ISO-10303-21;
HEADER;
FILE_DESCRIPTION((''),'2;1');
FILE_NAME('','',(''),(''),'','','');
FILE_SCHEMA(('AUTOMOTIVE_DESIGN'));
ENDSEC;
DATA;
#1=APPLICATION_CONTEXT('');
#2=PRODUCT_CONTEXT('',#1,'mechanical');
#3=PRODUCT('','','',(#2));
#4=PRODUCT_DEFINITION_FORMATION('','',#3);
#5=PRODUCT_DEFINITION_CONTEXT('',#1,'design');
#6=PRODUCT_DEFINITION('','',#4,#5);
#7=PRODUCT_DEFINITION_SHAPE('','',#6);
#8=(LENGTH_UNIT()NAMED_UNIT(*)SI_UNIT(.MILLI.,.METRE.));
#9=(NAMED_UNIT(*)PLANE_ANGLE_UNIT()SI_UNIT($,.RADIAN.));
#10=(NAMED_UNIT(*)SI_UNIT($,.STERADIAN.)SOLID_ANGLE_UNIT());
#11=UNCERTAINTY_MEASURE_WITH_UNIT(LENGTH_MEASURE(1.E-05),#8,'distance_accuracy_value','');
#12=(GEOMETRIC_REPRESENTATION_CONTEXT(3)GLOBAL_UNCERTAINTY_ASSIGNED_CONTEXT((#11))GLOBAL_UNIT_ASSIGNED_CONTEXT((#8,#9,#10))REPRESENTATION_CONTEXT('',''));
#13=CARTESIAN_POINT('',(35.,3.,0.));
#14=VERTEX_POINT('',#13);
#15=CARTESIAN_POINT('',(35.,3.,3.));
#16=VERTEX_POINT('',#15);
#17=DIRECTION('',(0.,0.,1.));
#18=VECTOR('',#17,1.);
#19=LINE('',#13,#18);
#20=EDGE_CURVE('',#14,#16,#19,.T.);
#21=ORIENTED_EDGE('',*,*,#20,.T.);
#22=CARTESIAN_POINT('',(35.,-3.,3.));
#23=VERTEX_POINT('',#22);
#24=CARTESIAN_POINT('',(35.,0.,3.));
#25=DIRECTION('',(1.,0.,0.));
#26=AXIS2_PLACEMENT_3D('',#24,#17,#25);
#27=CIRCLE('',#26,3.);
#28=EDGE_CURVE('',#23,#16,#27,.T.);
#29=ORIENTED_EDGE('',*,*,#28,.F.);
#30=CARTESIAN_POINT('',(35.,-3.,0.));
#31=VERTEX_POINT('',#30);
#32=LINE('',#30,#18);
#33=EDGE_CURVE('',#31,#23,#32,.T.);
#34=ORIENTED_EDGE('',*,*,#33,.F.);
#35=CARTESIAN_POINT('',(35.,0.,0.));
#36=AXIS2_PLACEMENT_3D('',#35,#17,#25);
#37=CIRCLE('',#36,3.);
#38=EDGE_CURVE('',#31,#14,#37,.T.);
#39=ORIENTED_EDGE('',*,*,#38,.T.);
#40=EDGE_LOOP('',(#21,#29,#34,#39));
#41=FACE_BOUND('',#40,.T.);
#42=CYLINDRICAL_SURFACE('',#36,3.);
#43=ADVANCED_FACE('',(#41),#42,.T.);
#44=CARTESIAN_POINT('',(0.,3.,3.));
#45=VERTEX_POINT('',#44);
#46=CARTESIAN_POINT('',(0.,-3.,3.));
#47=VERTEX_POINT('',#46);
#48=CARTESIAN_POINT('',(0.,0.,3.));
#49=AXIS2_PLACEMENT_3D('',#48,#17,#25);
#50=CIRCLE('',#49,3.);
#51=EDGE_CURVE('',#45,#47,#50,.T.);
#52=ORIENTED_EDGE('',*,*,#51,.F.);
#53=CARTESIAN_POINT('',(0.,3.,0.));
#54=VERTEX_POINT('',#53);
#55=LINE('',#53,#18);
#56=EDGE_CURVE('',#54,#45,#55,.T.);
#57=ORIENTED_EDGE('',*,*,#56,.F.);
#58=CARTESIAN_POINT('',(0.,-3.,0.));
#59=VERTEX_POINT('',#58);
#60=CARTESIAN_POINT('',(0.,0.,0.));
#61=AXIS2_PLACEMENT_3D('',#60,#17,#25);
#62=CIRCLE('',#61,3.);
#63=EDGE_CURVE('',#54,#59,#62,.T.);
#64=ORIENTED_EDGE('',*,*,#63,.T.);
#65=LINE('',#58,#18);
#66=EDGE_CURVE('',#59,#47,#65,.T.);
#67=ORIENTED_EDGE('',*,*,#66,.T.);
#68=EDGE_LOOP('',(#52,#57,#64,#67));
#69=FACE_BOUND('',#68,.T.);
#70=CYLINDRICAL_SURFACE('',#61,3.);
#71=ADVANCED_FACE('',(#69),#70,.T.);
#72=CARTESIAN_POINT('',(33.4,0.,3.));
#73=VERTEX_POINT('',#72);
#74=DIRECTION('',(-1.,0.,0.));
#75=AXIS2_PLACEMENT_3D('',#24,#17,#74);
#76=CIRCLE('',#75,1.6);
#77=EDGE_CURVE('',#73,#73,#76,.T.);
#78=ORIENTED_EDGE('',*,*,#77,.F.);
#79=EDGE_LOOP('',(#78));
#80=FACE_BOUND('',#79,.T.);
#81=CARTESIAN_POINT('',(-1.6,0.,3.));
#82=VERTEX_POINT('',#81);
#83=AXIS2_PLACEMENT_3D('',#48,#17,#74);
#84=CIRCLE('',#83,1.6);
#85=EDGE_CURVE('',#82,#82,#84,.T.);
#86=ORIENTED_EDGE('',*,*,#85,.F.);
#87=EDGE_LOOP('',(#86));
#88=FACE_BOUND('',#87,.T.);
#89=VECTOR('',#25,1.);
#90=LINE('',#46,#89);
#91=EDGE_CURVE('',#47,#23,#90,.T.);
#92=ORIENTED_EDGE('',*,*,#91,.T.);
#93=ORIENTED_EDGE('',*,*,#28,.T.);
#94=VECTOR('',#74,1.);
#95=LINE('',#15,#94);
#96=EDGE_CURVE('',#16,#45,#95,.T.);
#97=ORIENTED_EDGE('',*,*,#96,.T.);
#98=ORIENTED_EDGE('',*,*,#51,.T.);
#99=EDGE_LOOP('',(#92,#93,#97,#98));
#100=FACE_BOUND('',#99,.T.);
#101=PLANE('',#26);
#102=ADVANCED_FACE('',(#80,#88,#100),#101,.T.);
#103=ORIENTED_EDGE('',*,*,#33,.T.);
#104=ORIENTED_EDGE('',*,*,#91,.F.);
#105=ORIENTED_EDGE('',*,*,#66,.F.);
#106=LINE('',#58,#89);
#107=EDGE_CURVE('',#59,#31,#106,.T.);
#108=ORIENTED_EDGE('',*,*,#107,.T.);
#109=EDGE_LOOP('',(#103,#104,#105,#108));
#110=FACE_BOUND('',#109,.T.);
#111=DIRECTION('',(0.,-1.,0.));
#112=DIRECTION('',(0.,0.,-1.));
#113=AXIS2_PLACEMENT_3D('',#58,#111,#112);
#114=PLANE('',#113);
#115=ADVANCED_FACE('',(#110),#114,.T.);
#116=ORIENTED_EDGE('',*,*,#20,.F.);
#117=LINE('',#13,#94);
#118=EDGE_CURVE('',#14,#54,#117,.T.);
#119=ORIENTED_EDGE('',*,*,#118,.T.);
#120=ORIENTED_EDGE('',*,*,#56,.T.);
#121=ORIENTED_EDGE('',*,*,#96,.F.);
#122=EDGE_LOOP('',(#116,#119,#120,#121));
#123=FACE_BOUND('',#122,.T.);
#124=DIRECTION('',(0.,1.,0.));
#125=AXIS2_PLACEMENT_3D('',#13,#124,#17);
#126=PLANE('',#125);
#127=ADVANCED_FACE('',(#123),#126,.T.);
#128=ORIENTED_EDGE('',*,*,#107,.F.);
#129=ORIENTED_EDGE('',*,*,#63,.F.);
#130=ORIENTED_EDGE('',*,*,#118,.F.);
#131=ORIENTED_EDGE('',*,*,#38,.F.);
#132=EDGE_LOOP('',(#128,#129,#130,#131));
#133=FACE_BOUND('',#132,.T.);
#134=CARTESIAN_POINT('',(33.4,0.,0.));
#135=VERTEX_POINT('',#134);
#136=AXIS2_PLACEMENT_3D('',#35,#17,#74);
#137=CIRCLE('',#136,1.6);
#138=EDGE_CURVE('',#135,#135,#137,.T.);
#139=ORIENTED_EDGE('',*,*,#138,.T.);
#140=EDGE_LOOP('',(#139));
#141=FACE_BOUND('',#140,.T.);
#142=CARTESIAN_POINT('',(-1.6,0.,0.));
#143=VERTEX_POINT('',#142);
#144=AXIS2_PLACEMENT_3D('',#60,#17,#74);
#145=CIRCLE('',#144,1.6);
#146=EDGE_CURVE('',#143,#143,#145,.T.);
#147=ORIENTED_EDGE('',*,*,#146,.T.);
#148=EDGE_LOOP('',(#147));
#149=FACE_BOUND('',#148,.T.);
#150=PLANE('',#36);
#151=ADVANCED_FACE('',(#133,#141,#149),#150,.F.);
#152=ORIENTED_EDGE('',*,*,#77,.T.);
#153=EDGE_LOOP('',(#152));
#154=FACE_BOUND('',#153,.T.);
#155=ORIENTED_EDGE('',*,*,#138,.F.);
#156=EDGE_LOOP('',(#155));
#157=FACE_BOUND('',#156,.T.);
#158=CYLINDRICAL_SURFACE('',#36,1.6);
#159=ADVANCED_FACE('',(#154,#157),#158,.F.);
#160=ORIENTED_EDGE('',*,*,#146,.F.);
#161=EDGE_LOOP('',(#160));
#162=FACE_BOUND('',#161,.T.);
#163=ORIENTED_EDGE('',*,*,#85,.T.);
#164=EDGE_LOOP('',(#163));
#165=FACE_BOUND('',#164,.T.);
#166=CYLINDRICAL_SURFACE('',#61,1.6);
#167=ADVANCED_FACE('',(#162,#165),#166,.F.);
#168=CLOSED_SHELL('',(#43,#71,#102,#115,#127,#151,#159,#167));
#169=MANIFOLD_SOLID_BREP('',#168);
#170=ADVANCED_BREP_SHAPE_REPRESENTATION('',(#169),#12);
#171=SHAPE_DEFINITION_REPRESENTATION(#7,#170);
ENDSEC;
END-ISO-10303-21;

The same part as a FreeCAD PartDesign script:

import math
import FreeCAD as App
import Part
import Sketcher
Q = App.Units.Quantity

doc = App.newDocument("Part")
body = doc.addObject("PartDesign::Body", "Body")

# Sketch on XY plane
sketch1 = body.newObject("Sketcher::SketchObject", "Sketch")
sketch1.AttachmentSupport = (doc.getObject("XY_Plane"), [""])
sketch1.MapMode = "FlatFace"
sketch1.AttachmentOffset = App.Placement(App.Vector(0, 0, 3), App.Rotation())
sketch1.addGeometry(Part.LineSegment(App.Vector(35, 3, 0), App.Vector(0, 3, 0)), False)
sketch1.addGeometry(Part.ArcOfCircle(Part.Circle(App.Vector(0, 0, 0), App.Vector(0, 0, 1), 3), math.radians(90), math.radians(270)), False)
sketch1.addGeometry(Part.LineSegment(App.Vector(0, -3, 0), App.Vector(35, -3, 0)), False)
sketch1.addGeometry(Part.ArcOfCircle(Part.Circle(App.Vector(35, 0, 0), App.Vector(0, 0, 1), 3), math.radians(-90), math.radians(90)), False)
sketch1.addGeometry(Part.Circle(App.Vector(0, 0, 0), App.Vector(0, 0, 1), 1.6), False)
sketch1.addGeometry(Part.Circle(App.Vector(35, 0, 0), App.Vector(0, 0, 1), 1.6), False)
sketch1.addConstraint(Sketcher.Constraint("Tangent", 0, 2, 1, 1))
sketch1.addConstraint(Sketcher.Constraint("Tangent", 1, 2, 2, 1))
sketch1.addConstraint(Sketcher.Constraint("Tangent", 2, 2, 3, 1))
sketch1.addConstraint(Sketcher.Constraint("Tangent", 3, 2, 0, 1))
sketch1.addConstraint(Sketcher.Constraint("Horizontal", 0))
sketch1.addConstraint(Sketcher.Constraint("Horizontal", 2))
sketch1.addConstraint(Sketcher.Constraint("Coincident", 1, 3, -1, 1))
sketch1.addConstraint(Sketcher.Constraint("Coincident", 4, 3, -1, 1))
sketch1.addConstraint(Sketcher.Constraint("Coincident", 5, 3, 3, 3))
sketch1.addConstraint(Sketcher.Constraint("Equal", 4, 5))
sketch1.addConstraint(Sketcher.Constraint("Radius", 1, Q("3 mm")))
sketch1.addConstraint(Sketcher.Constraint("Diameter", 4, Q("3.2 mm")))
sketch1.addConstraint(Sketcher.Constraint("DistanceX", 0, 2, 0, 1, Q("35 mm")))
pad1 = body.newObject("PartDesign::Pad", "Pad")
pad1.Profile = sketch1
pad1.Length = 3
pad1.Reversed = True

doc.recompute()
